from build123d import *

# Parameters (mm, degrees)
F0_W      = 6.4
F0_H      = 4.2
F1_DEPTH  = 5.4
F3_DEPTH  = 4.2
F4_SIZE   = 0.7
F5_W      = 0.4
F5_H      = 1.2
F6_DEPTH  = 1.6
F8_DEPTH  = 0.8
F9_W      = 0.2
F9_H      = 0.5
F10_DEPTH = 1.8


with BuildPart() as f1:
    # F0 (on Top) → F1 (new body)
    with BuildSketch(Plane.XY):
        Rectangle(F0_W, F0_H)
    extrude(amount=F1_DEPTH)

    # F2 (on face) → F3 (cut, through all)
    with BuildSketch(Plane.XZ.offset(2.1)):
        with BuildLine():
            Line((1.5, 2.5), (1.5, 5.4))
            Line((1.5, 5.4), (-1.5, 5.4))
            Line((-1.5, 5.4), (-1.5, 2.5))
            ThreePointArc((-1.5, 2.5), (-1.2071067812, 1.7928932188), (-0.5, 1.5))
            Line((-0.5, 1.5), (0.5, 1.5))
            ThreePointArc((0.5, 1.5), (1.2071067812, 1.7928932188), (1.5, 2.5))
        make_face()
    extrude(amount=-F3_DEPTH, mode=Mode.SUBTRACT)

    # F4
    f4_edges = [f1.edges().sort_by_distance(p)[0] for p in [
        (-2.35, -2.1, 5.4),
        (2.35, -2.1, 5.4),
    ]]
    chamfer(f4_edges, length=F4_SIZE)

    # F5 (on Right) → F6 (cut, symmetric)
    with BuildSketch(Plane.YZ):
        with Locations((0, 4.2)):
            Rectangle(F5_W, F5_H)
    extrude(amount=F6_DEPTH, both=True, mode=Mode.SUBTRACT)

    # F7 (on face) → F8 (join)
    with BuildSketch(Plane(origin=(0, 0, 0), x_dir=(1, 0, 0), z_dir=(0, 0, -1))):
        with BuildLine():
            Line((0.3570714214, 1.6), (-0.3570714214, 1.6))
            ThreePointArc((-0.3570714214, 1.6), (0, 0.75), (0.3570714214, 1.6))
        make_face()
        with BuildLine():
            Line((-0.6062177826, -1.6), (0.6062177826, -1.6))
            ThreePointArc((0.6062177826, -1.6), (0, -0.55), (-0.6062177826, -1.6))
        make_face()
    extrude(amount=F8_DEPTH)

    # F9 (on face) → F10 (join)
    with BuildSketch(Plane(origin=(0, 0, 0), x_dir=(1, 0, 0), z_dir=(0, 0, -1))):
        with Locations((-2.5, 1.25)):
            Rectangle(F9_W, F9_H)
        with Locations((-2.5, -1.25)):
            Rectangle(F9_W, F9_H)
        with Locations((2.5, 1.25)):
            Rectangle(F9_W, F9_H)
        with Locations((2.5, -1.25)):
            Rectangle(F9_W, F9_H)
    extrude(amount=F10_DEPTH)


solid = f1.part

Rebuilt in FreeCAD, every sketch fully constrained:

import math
import FreeCAD as App
import Part
import Sketcher
from FreeCAD import Vector
Q = App.Units.Quantity


def edges_at(feature, points):
    """Names of the edges that pass closest to the given points."""
    edges = feature.Shape.Edges
    near = lambda p: min(range(len(edges)), key=lambda i: edges[i].distToShape(Part.Vertex(*p))[0])
    return sorted({f"Edge{near(p) + 1}" for p in points})

doc = App.newDocument("Part")
body = doc.addObject("PartDesign::Body", "Body")

sketch1 = body.newObject("Sketcher::SketchObject", "Sketch")
sketch1.AttachmentSupport = (doc.getObject("XY_Plane"), [""])
sketch1.MapMode = "FlatFace"
sketch1.addGeometry(Part.LineSegment(Vector(-3.2, 2.1, 0), Vector(-3.2, -2.1, 0)), False)
sketch1.addGeometry(Part.LineSegment(Vector(-3.2, -2.1, 0), Vector(3.2, -2.1, 0)), False)
sketch1.addGeometry(Part.LineSegment(Vector(3.2, -2.1, 0), Vector(3.2, 2.1, 0)), False)
sketch1.addGeometry(Part.LineSegment(Vector(3.2, 2.1, 0), Vector(-3.2, 2.1, 0)), False)
sketch1.addConstraint(Sketcher.Constraint("Coincident", 0, 2, 1, 1))
sketch1.addConstraint(Sketcher.Constraint("Coincident", 1, 2, 2, 1))
sketch1.addConstraint(Sketcher.Constraint("Coincident", 2, 2, 3, 1))
sketch1.addConstraint(Sketcher.Constraint("Coincident", 3, 2, 0, 1))
sketch1.addConstraint(Sketcher.Constraint("Vertical", 0))
sketch1.addConstraint(Sketcher.Constraint("Horizontal", 1))
sketch1.addConstraint(Sketcher.Constraint("Vertical", 2))
sketch1.addConstraint(Sketcher.Constraint("Horizontal", 3))
sketch1.addConstraint(Sketcher.Constraint("Symmetric", 0, 2, 2, 2, -1, 1))
sketch1.addConstraint(Sketcher.Constraint("DistanceX", 1, 1, 1, 2, Q("6.4 mm")))
sketch1.addConstraint(Sketcher.Constraint("DistanceY", 0, 2, 0, 1, Q("4.2 mm")))
pad1 = body.newObject("PartDesign::Pad", "Pad")
pad1.Profile = sketch1
pad1.Length = 5.4

sketch2 = body.newObject("Sketcher::SketchObject", "Sketch001")
sketch2.AttachmentSupport = (doc.getObject("XZ_Plane"), [""])
sketch2.MapMode = "FlatFace"
sketch2.AttachmentOffset = App.Placement(Vector(0, 0, 2.1), App.Rotation())
sketch2.addGeometry(Part.LineSegment(Vector(1.5, 2.5, 0), Vector(1.5, 5.4, 0)), False)
sketch2.addGeometry(Part.LineSegment(Vector(1.5, 5.4, 0), Vector(-1.5, 5.4, 0)), False)
sketch2.addGeometry(Part.LineSegment(Vector(-1.5, 5.4, 0), Vector(-1.5, 2.5, 0)), False)
sketch2.addGeometry(Part.ArcOfCircle(Part.Circle(Vector(-0.5, 2.5, 0), Vector(0, 0, 1), 1), math.radians(180), math.radians(270)), False)
sketch2.addGeometry(Part.LineSegment(Vector(-0.5, 1.5, 0), Vector(0.5, 1.5, 0)), False)
sketch2.addGeometry(Part.ArcOfCircle(Part.Circle(Vector(0.5, 2.5, 0), Vector(0, 0, 1), 1), math.radians(-90), math.radians(0)), False)
sketch2.addConstraint(Sketcher.Constraint("Coincident", 0, 2, 1, 1))
sketch2.addConstraint(Sketcher.Constraint("Coincident", 1, 2, 2, 1))
sketch2.addConstraint(Sketcher.Constraint("Tangent", 2, 2, 3, 1))
sketch2.addConstraint(Sketcher.Constraint("Tangent", 3, 2, 4, 1))
sketch2.addConstraint(Sketcher.Constraint("Tangent", 4, 2, 5, 1))
sketch2.addConstraint(Sketcher.Constraint("Tangent", 5, 2, 0, 1))
sketch2.addConstraint(Sketcher.Constraint("Vertical", 0))
sketch2.addConstraint(Sketcher.Constraint("Horizontal", 1))
sketch2.addConstraint(Sketcher.Constraint("Vertical", 2))
sketch2.addConstraint(Sketcher.Constraint("Horizontal", 4))
sketch2.addConstraint(Sketcher.Constraint("Equal", 3, 5))
sketch2.addConstraint(Sketcher.Constraint("Radius", 3, Q("1 mm")))
sketch2.addConstraint(Sketcher.Constraint("DistanceX", 1, 2, 1, 1, Q("3 mm")))
sketch2.addConstraint(Sketcher.Constraint("DistanceY", 0, 1, 0, 2, Q("2.9 mm")))
sketch2.addConstraint(Sketcher.Constraint("DistanceX", 3, 3, -1, 1, Q("0.5 mm")))
sketch2.addConstraint(Sketcher.Constraint("DistanceY", -1, 1, 3, 3, Q("2.5 mm")))
pocket1 = body.newObject("PartDesign::Pocket", "Pocket")
pocket1.Profile = sketch2
pocket1.Type = "ThroughAll"
doc.recompute()

chamfer = body.newObject("PartDesign::Chamfer", "Chamfer")
chamfer.Base = (pocket1, edges_at(pocket1, [(-2.35, -2.1, 5.4), (2.35, -2.1, 5.4)]))
chamfer.Size = 0.7

sketch3 = body.newObject("Sketcher::SketchObject", "Sketch002")
sketch3.AttachmentSupport = (doc.getObject("YZ_Plane"), [""])
sketch3.MapMode = "FlatFace"
sketch3.addGeometry(Part.LineSegment(Vector(-0.2, 4.8, 0), Vector(-0.2, 3.6, 0)), False)
sketch3.addGeometry(Part.LineSegment(Vector(-0.2, 3.6, 0), Vector(0.2, 3.6, 0)), False)
sketch3.addGeometry(Part.LineSegment(Vector(0.2, 3.6, 0), Vector(0.2, 4.8, 0)), False)
sketch3.addGeometry(Part.LineSegment(Vector(0.2, 4.8, 0), Vector(-0.2, 4.8, 0)), False)
sketch3.addConstraint(Sketcher.Constraint("Coincident", 0, 2, 1, 1))
sketch3.addConstraint(Sketcher.Constraint("Coincident", 1, 2, 2, 1))
sketch3.addConstraint(Sketcher.Constraint("Coincident", 2, 2, 3, 1))
sketch3.addConstraint(Sketcher.Constraint("Coincident", 3, 2, 0, 1))
sketch3.addConstraint(Sketcher.Constraint("Vertical", 0))
sketch3.addConstraint(Sketcher.Constraint("Horizontal", 1))
sketch3.addConstraint(Sketcher.Constraint("Vertical", 2))
sketch3.addConstraint(Sketcher.Constraint("Horizontal", 3))
sketch3.addConstraint(Sketcher.Constraint("DistanceX", 1, 1, 1, 2, Q("0.4 mm")))
sketch3.addConstraint(Sketcher.Constraint("DistanceY", 0, 2, 0, 1, Q("1.2 mm")))
sketch3.addConstraint(Sketcher.Constraint("DistanceX", 0, 2, -1, 1, Q("0.2 mm")))
sketch3.addConstraint(Sketcher.Constraint("DistanceY", -1, 1, 0, 2, Q("3.6 mm")))
pocket2 = body.newObject("PartDesign::Pocket", "Pocket001")
pocket2.Profile = sketch3
pocket2.Length = 3.2
pocket2.Midplane = True

sketch4 = body.newObject("Sketcher::SketchObject", "Sketch003")
sketch4.AttachmentSupport = (doc.getObject("XY_Plane"), [""])
sketch4.MapMode = "FlatFace"
sketch4.addGeometry(Part.LineSegment(Vector(0.4, -1.6, 0), Vector(-0.4, -1.6, 0)), False)
sketch4.addGeometry(Part.ArcOfCircle(Part.Circle(Vector(0, -1.2, 0), Vector(0, 0, 1), 0.5), math.radians(-44), math.radians(224)), False)
sketch4.addGeometry(Part.LineSegment(Vector(-0.6, 1.6, 0), Vector(0.6, 1.6, 0)), False)
sketch4.addGeometry(Part.ArcOfCircle(Part.Circle(Vector(0, 1.2, 0), Vector(0, 0, 1), 0.7), math.radians(150), math.radians(390)), False)
sketch4.addConstraint(Sketcher.Constraint("Coincident", 0, 1, 1, 1))
sketch4.addConstraint(Sketcher.Constraint("Coincident", 1, 2, 0, 2))
sketch4.addConstraint(Sketcher.Constraint("Coincident", 2, 1, 3, 1))
sketch4.addConstraint(Sketcher.Constraint("Coincident", 3, 2, 2, 2))
sketch4.addConstraint(Sketcher.Constraint("Horizontal", 0))
sketch4.addConstraint(Sketcher.Constraint("Horizontal", 2))
sketch4.addConstraint(Sketcher.Constraint("Symmetric", 1, 3, 3, 3, -1, 1))
sketch4.addConstraint(Sketcher.Constraint("PointOnObject", 1, 3, -2))
sketch4.addConstraint(Sketcher.Constraint("Radius", 1, Q("0.5 mm")))
sketch4.addConstraint(Sketcher.Constraint("Radius", 3, Q("0.7 mm")))
sketch4.addConstraint(Sketcher.Constraint("DistanceY", 0, 1, -1, 1, Q("1.6 mm")))
sketch4.addConstraint(Sketcher.Constraint("DistanceY", -1, 1, 2, 1, Q("1.6 mm")))
sketch4.addConstraint(Sketcher.Constraint("DistanceY", 1, 3, 3, 3, Q("2.5 mm")))
pad2 = body.newObject("PartDesign::Pad", "Pad001")
pad2.Profile = sketch4
pad2.Length = 0.8
pad2.Reversed = True

sketch5 = body.newObject("Sketcher::SketchObject", "Sketch004")
sketch5.AttachmentSupport = (doc.getObject("XY_Plane"), [""])
sketch5.MapMode = "FlatFace"
sketch5.addGeometry(Part.LineSegment(Vector(-2.6, -1.5, 0), Vector(-2.6, -1, 0)), False)
sketch5.addGeometry(Part.LineSegment(Vector(-2.6, -1, 0), Vector(-2.4, -1, 0)), False)
sketch5.addGeometry(Part.LineSegment(Vector(-2.4, -1, 0), Vector(-2.4, -1.5, 0)), False)
sketch5.addGeometry(Part.LineSegment(Vector(-2.4, -1.5, 0), Vector(-2.6, -1.5, 0)), False)
sketch5.addGeometry(Part.LineSegment(Vector(-2.6, 1, 0), Vector(-2.6, 1.5, 0)), False)
sketch5.addGeometry(Part.LineSegment(Vector(-2.6, 1.5, 0), Vector(-2.4, 1.5, 0)), False)
sketch5.addGeometry(Part.LineSegment(Vector(-2.4, 1.5, 0), Vector(-2.4, 1, 0)), False)
sketch5.addGeometry(Part.LineSegment(Vector(-2.4, 1, 0), Vector(-2.6, 1, 0)), False)
sketch5.addGeometry(Part.LineSegment(Vector(2.4, -1.5, 0), Vector(2.4, -1, 0)), False)
sketch5.addGeometry(Part.LineSegment(Vector(2.4, -1, 0), Vector(2.6, -1, 0)), False)
sketch5.addGeometry(Part.LineSegment(Vector(2.6, -1, 0), Vector(2.6, -1.5, 0)), False)
sketch5.addGeometry(Part.LineSegment(Vector(2.6, -1.5, 0), Vector(2.4, -1.5, 0)), False)
sketch5.addGeometry(Part.LineSegment(Vector(2.4, 1, 0), Vector(2.4, 1.5, 0)), False)
sketch5.addGeometry(Part.LineSegment(Vector(2.4, 1.5, 0), Vector(2.6, 1.5, 0)), False)
sketch5.addGeometry(Part.LineSegment(Vector(2.6, 1.5, 0), Vector(2.6, 1, 0)), False)
sketch5.addGeometry(Part.LineSegment(Vector(2.6, 1, 0), Vector(2.4, 1, 0)), False)
sketch5.addConstraint(Sketcher.Constraint("Coincident", 0, 2, 1, 1))
sketch5.addConstraint(Sketcher.Constraint("Coincident", 1, 2, 2, 1))
sketch5.addConstraint(Sketcher.Constraint("Coincident", 2, 2, 3, 1))
sketch5.addConstraint(Sketcher.Constraint("Coincident", 3, 2, 0, 1))
sketch5.addConstraint(Sketcher.Constraint("Coincident", 4, 2, 5, 1))
sketch5.addConstraint(Sketcher.Constraint("Coincident", 5, 2, 6, 1))
sketch5.addConstraint(Sketcher.Constraint("Coincident", 6, 2, 7, 1))
sketch5.addConstraint(Sketcher.Constraint("Coincident", 7, 2, 4, 1))
sketch5.addConstraint(Sketcher.Constraint("Coincident", 8, 2, 9, 1))
sketch5.addConstraint(Sketcher.Constraint("Coincident", 9, 2, 10, 1))
sketch5.addConstraint(Sketcher.Constraint("Coincident", 10, 2, 11, 1))
sketch5.addConstraint(Sketcher.Constraint("Coincident", 11, 2, 8, 1))
sketch5.addConstraint(Sketcher.Constraint("Coincident", 12, 2, 13, 1))
sketch5.addConstraint(Sketcher.Constraint("Coincident", 13, 2, 14, 1))
sketch5.addConstraint(Sketcher.Constraint("Coincident", 14, 2, 15, 1))
sketch5.addConstraint(Sketcher.Constraint("Coincident", 15, 2, 12, 1))
sketch5.addConstraint(Sketcher.Constraint("Vertical", 0))
sketch5.addConstraint(Sketcher.Constraint("Horizontal", 1))
sketch5.addConstraint(Sketcher.Constraint("Vertical", 2))
sketch5.addConstraint(Sketcher.Constraint("Horizontal", 3))
sketch5.addConstraint(Sketcher.Constraint("Vertical", 4))
sketch5.addConstraint(Sketcher.Constraint("Horizontal", 5))
sketch5.addConstraint(Sketcher.Constraint("Vertical", 6))
sketch5.addConstraint(Sketcher.Constraint("Horizontal", 7))
sketch5.addConstraint(Sketcher.Constraint("Vertical", 8))
sketch5.addConstraint(Sketcher.Constraint("Horizontal", 9))
sketch5.addConstraint(Sketcher.Constraint("Vertical", 10))
sketch5.addConstraint(Sketcher.Constraint("Horizontal", 11))
sketch5.addConstraint(Sketcher.Constraint("Vertical", 12))
sketch5.addConstraint(Sketcher.Constraint("Horizontal", 13))
sketch5.addConstraint(Sketcher.Constraint("Vertical", 14))
sketch5.addConstraint(Sketcher.Constraint("Horizontal", 15))
sketch5.addConstraint(Sketcher.Constraint("Symmetric", 6, 2, 8, 2, -1, 1))
sketch5.addConstraint(Sketcher.Constraint("Symmetric", 4, 2, 10, 2, -1, 1))
sketch5.addConstraint(Sketcher.Constraint("Symmetric", 2, 2, 12, 2, -1, 1))
sketch5.addConstraint(Sketcher.Constraint("Symmetric", 0, 2, 14, 2, -1, 1))
sketch5.addConstraint(Sketcher.Constraint("Symmetric", 1, 2, 8, 2, -2))
sketch5.addConstraint(Sketcher.Constraint("Symmetric", 3, 2, 10, 2, -2))
sketch5.addConstraint(Sketcher.Constraint("DistanceX", 1, 1, 1, 2, Q("0.2 mm")))
sketch5.addConstraint(Sketcher.Constraint("DistanceY", 0, 1, 0, 2, Q("0.5 mm")))
sketch5.addConstraint(Sketcher.Constraint("DistanceY", 0, 2, -1, 1, Q("1 mm")))
sketch5.addConstraint(Sketcher.Constraint("DistanceX", 0, 2, 8, 2, Q("5 mm")))
pad3 = body.newObject("PartDesign::Pad", "Pad002")
pad3.Profile = sketch5
pad3.Length = 1.8
pad3.Reversed = True

doc.recompute()
